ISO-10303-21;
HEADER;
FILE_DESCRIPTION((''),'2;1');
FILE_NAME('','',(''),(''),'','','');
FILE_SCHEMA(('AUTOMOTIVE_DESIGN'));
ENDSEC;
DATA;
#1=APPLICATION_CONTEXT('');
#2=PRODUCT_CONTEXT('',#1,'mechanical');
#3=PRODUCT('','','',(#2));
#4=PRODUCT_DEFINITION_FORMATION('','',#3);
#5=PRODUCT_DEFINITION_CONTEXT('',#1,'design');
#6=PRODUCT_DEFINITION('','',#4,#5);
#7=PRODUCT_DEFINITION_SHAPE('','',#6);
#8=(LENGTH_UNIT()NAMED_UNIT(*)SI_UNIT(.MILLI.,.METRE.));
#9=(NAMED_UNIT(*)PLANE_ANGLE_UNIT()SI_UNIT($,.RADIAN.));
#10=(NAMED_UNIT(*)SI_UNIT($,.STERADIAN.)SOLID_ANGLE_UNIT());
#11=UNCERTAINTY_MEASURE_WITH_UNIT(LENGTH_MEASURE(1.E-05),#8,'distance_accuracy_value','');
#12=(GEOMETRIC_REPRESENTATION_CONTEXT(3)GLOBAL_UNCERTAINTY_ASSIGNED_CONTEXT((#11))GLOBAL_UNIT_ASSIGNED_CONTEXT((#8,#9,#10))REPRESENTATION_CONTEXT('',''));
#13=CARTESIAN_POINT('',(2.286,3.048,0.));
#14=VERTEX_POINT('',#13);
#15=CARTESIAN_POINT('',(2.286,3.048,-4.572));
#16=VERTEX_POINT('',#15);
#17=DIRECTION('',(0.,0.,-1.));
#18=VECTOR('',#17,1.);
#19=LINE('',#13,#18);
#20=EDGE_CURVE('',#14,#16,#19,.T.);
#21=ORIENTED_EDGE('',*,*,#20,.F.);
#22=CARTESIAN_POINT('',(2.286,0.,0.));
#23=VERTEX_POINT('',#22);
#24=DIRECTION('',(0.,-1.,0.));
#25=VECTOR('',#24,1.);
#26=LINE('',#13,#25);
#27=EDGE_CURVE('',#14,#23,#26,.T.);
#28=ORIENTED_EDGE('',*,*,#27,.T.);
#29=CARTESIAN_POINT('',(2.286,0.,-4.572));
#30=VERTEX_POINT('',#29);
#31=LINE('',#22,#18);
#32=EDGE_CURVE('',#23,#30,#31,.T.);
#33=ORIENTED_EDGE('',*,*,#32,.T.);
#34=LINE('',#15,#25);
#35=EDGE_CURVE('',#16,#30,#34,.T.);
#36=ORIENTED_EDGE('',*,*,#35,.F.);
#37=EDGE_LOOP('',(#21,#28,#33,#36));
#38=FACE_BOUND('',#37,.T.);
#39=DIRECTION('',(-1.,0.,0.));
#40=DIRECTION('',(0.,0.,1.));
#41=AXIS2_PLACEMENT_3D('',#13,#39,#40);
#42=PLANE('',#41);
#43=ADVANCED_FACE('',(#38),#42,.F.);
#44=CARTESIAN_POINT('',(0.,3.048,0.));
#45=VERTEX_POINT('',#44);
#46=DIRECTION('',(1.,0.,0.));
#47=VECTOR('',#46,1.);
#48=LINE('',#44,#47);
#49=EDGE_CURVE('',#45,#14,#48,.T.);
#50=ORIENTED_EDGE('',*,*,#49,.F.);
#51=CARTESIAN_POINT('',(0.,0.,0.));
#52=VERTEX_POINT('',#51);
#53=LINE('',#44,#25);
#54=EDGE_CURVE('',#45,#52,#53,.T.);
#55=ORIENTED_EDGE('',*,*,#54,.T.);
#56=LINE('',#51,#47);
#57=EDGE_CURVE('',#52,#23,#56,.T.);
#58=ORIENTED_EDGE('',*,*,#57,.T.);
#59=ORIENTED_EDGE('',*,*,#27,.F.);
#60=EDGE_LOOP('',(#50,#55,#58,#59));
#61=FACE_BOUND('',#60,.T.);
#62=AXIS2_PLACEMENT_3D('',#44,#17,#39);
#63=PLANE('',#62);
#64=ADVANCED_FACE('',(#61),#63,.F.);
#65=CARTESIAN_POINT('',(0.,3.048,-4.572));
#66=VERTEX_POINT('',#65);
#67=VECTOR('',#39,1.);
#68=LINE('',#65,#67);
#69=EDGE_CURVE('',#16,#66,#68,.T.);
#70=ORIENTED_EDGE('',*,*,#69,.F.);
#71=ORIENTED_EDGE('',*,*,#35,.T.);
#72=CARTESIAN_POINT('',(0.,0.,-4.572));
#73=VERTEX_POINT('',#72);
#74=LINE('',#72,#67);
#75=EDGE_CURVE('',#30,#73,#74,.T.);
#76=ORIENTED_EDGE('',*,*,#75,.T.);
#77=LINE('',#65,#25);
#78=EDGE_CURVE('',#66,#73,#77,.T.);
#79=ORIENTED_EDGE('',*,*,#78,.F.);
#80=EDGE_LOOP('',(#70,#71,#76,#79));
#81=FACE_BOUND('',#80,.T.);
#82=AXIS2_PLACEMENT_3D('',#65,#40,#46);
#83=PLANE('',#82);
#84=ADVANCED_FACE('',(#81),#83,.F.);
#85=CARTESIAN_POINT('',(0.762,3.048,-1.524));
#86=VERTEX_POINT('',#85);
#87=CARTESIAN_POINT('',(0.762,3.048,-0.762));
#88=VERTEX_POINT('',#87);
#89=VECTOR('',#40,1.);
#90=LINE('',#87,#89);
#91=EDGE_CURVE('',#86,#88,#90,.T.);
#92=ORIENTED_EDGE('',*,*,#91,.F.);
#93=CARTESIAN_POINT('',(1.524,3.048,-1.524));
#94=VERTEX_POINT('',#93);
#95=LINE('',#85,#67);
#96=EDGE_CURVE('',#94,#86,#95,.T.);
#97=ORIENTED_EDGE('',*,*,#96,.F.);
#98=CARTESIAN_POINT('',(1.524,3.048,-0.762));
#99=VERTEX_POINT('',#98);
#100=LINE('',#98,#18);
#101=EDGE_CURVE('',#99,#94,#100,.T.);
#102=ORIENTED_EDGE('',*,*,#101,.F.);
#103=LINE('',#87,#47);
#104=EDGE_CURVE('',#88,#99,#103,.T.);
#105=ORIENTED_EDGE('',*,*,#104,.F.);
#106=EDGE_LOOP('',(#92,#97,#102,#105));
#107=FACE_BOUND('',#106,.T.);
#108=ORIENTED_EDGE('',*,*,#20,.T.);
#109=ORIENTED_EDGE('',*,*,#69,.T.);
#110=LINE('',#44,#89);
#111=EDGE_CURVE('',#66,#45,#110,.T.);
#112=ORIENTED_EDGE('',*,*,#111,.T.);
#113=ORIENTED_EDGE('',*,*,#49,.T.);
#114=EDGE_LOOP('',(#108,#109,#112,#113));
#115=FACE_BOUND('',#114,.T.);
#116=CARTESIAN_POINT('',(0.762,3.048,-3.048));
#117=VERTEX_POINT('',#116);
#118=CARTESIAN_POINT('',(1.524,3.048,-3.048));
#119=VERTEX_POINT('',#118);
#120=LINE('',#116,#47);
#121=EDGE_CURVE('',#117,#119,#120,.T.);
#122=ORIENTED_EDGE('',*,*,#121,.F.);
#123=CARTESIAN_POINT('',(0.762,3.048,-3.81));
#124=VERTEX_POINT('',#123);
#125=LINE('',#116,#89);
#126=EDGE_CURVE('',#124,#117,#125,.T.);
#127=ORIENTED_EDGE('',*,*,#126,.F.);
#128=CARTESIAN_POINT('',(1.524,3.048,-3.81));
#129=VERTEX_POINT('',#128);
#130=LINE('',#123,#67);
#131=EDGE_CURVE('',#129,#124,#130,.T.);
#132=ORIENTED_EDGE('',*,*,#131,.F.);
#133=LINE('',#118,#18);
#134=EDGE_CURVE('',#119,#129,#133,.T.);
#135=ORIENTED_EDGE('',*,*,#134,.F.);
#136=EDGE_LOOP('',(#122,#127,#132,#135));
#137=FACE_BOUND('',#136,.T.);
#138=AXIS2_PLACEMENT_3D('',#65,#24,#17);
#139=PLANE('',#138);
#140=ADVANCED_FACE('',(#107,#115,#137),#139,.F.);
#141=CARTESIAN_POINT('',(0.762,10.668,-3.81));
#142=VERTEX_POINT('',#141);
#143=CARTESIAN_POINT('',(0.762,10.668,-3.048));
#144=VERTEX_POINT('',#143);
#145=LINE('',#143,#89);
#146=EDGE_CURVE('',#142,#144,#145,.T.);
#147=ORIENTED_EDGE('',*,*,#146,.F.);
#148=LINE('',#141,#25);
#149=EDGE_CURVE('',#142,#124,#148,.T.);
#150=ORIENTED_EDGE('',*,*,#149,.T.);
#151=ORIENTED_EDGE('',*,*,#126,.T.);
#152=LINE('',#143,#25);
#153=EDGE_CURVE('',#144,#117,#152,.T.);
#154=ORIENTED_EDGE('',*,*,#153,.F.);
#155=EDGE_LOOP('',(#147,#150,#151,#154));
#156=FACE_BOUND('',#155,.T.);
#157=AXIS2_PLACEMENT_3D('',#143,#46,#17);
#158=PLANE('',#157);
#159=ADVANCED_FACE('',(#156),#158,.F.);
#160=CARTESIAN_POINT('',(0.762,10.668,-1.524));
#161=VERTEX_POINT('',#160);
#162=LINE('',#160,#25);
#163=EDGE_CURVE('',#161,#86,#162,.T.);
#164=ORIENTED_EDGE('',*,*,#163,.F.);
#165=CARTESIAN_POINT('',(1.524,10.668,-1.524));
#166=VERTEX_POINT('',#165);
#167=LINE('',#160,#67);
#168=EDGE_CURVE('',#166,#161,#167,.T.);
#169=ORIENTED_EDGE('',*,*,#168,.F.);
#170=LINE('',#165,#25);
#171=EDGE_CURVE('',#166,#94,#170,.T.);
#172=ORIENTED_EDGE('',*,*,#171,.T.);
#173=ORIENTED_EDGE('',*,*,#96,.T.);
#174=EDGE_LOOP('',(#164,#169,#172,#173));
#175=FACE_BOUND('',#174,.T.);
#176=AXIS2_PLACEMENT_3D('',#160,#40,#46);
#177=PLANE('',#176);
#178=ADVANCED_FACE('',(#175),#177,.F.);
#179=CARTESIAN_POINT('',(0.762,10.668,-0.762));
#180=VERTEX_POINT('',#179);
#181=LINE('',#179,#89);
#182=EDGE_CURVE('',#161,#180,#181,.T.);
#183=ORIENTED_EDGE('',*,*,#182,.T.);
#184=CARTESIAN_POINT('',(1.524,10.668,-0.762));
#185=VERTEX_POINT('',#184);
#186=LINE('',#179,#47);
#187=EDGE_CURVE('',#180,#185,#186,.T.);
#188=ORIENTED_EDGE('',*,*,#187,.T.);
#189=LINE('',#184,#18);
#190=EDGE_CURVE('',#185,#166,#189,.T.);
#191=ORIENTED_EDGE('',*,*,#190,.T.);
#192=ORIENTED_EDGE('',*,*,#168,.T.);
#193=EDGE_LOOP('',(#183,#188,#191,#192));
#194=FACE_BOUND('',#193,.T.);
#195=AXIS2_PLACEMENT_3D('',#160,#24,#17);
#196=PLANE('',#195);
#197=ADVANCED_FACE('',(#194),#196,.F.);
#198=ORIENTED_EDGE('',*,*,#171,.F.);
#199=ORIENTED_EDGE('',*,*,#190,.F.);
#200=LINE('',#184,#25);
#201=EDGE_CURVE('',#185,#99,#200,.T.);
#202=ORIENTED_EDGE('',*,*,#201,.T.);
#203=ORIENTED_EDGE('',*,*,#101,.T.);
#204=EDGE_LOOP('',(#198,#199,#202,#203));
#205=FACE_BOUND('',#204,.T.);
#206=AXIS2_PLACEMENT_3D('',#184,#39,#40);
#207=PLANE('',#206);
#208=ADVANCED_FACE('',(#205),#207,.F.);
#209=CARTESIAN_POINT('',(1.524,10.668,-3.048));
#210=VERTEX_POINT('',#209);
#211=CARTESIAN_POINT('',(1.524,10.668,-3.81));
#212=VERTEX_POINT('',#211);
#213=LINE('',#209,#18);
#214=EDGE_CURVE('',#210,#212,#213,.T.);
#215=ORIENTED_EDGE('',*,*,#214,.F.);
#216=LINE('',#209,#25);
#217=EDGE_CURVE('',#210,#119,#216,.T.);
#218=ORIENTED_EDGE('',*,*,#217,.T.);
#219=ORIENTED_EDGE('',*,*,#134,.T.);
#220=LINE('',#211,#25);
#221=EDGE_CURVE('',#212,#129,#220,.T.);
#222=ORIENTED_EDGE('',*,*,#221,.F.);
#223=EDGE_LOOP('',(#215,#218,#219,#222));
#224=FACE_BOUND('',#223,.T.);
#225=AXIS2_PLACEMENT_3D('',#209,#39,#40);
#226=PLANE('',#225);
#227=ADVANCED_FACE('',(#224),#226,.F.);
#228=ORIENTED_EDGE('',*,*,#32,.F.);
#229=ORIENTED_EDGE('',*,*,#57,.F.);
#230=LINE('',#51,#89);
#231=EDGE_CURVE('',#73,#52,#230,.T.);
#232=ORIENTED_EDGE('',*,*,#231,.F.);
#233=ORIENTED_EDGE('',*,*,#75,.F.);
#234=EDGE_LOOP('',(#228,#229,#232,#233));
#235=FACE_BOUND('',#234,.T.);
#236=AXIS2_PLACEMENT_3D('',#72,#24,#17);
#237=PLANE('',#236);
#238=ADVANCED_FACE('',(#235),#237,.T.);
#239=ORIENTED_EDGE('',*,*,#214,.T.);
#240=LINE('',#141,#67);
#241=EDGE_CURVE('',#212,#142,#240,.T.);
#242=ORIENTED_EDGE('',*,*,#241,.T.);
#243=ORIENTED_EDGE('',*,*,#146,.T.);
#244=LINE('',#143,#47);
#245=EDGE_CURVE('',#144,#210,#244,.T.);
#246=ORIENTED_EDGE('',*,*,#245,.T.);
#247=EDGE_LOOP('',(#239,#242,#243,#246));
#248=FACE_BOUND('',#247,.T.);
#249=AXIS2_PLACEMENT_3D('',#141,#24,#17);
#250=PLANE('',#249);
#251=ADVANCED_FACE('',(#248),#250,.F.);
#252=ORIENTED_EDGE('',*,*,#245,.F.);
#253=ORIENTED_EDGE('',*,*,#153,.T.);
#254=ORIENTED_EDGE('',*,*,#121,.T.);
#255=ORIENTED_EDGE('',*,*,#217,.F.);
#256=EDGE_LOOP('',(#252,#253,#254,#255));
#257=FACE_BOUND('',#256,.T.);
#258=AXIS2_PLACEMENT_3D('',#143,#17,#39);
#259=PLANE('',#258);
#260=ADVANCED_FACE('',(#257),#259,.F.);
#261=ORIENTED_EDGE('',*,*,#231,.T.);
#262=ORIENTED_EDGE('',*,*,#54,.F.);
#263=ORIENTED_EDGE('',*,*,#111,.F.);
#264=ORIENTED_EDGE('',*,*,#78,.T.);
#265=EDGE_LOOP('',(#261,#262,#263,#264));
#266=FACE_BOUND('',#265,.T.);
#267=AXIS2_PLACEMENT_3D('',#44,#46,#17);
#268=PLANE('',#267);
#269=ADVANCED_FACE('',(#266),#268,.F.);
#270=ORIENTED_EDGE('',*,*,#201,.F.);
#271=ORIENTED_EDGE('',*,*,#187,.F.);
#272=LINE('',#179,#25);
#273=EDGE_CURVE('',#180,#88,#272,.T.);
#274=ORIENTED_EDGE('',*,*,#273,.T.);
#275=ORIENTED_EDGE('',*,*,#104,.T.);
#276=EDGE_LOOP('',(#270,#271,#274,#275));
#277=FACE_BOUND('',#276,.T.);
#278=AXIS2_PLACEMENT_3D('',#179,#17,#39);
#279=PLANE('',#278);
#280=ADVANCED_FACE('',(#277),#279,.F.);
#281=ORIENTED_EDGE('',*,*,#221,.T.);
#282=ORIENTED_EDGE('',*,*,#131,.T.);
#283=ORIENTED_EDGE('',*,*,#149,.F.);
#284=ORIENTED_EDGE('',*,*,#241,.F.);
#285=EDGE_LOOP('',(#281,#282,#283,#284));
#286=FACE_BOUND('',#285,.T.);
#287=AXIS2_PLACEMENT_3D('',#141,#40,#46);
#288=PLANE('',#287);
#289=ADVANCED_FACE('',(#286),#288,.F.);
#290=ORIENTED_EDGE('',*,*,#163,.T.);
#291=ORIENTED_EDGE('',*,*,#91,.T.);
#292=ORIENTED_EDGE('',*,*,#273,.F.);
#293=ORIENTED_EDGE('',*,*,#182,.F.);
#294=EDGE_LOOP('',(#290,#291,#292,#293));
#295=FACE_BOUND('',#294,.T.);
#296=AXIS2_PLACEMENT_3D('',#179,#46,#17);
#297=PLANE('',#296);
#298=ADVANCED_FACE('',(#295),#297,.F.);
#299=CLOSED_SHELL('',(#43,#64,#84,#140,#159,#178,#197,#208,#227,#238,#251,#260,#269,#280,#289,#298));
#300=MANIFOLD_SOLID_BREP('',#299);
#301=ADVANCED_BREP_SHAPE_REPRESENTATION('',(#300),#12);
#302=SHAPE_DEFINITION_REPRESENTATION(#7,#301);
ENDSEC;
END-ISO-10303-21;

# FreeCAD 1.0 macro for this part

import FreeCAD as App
import Part
import Sketcher
from FreeCAD import Vector
Q = App.Units.Quantity

doc = App.newDocument("Part")
body = doc.addObject("PartDesign::Body", "Body")

sketch1 = body.newObject("Sketcher::SketchObject", "Sketch")
sketch1.AttachmentSupport = (doc.getObject("XZ_Plane"), [""])
sketch1.MapMode = "FlatFace"
sketch1.addGeometry([
    Part.LineSegment(Vector(0, -4.6, 0), Vector(0, 0, 0)),
    Part.LineSegment(Vector(0, 0, 0), Vector(2.3, 0, 0)),
    Part.LineSegment(Vector(2.3, 0, 0), Vector(2.3, -4.6, 0)),
    Part.LineSegment(Vector(2.3, -4.6, 0), Vector(0, -4.6, 0)),
], False)
sketch1.addConstraint([
    Sketcher.Constraint("Coincident", 0, 2, 1, 1),
    Sketcher.Constraint("Coincident", 1, 2, 2, 1),
    Sketcher.Constraint("Coincident", 2, 2, 3, 1),
    Sketcher.Constraint("Coincident", 3, 2, 0, 1),
    Sketcher.Constraint("Vertical", 0),
    Sketcher.Constraint("Horizontal", 1),
    Sketcher.Constraint("Vertical", 2),
    Sketcher.Constraint("Horizontal", 3),
    Sketcher.Constraint("Coincident", 0, 2, -1, 1),
    Sketcher.Constraint("DistanceX", 1, 1, 1, 2, Q("0.09 in")),
    Sketcher.Constraint("DistanceY", 0, 1, 0, 2, Q("0.18 in")),
])
pad1 = body.newObject("PartDesign::Pad", "Pad")
pad1.Profile = sketch1
pad1.Length = Q("0.12 in")
pad1.Reversed = True

sketch2 = body.newObject("Sketcher::SketchObject", "Sketch001")
sketch2.AttachmentSupport = (doc.getObject("XZ_Plane"), [""])
sketch2.MapMode = "FlatFace"
sketch2.AttachmentOffset = App.Placement(Vector(0, 0, -0.12 * 25.4), App.Rotation())
sketch2.addGeometry([
    Part.LineSegment(Vector(0.8, -1.5, 0), Vector(0.8, -0.8, 0)),
    Part.LineSegment(Vector(0.8, -0.8, 0), Vector(1.5, -0.8, 0)),
    Part.LineSegment(Vector(1.5, -0.8, 0), Vector(1.5, -1.5, 0)),
    Part.LineSegment(Vector(1.5, -1.5, 0), Vector(0.8, -1.5, 0)),
    Part.LineSegment(Vector(0.8, -3.8, 0), Vector(0.8, -3, 0)),
    Part.LineSegment(Vector(0.8, -3, 0), Vector(1.5, -3, 0)),
    Part.LineSegment(Vector(1.5, -3, 0), Vector(1.5, -3.8, 0)),
    Part.LineSegment(Vector(1.5, -3.8, 0), Vector(0.8, -3.8, 0)),
], False)
sketch2.addConstraint([
    Sketcher.Constraint("Coincident", 0, 2, 1, 1),
    Sketcher.Constraint("Coincident", 1, 2, 2, 1),
    Sketcher.Constraint("Coincident", 2, 2, 3, 1),
    Sketcher.Constraint("Coincident", 3, 2, 0, 1),
    Sketcher.Constraint("Coincident", 4, 2, 5, 1),
    Sketcher.Constraint("Coincident", 5, 2, 6, 1),
    Sketcher.Constraint("Coincident", 6, 2, 7, 1),
    Sketcher.Constraint("Coincident", 7, 2, 4, 1),
    Sketcher.Constraint("Vertical", 0),
    Sketcher.Constraint("Horizontal", 1),
    Sketcher.Constraint("Vertical", 2),
    Sketcher.Constraint("Horizontal", 3),
    Sketcher.Constraint("Vertical", 4),
    Sketcher.Constraint("Horizontal", 5),
    Sketcher.Constraint("Vertical", 6),
    Sketcher.Constraint("Horizontal", 7),
    Sketcher.Constraint("Vertical", 3, 2, 4, 2),
    Sketcher.Constraint("Vertical", 2, 2, 5, 2),
    Sketcher.Constraint("Equal", 7, 0),
    Sketcher.Constraint("Equal", 2, 4),
    Sketcher.Constraint("DistanceX", 1, 1, 1, 2, Q("0.03 in")),
    Sketcher.Constraint("DistanceX", -1, 1, 0, 2, Q("0.03 in")),
    Sketcher.Constraint("DistanceY", 0, 2, -1, 1, Q("0.03 in")),
    Sketcher.Constraint("DistanceY", 4, 2, -1, 1, Q("0.12 in")),
])
pad2 = body.newObject("PartDesign::Pad", "Pad001")
pad2.Profile = sketch2
pad2.Length = Q("0.3 in")
pad2.Reversed = True

doc.recompute()
